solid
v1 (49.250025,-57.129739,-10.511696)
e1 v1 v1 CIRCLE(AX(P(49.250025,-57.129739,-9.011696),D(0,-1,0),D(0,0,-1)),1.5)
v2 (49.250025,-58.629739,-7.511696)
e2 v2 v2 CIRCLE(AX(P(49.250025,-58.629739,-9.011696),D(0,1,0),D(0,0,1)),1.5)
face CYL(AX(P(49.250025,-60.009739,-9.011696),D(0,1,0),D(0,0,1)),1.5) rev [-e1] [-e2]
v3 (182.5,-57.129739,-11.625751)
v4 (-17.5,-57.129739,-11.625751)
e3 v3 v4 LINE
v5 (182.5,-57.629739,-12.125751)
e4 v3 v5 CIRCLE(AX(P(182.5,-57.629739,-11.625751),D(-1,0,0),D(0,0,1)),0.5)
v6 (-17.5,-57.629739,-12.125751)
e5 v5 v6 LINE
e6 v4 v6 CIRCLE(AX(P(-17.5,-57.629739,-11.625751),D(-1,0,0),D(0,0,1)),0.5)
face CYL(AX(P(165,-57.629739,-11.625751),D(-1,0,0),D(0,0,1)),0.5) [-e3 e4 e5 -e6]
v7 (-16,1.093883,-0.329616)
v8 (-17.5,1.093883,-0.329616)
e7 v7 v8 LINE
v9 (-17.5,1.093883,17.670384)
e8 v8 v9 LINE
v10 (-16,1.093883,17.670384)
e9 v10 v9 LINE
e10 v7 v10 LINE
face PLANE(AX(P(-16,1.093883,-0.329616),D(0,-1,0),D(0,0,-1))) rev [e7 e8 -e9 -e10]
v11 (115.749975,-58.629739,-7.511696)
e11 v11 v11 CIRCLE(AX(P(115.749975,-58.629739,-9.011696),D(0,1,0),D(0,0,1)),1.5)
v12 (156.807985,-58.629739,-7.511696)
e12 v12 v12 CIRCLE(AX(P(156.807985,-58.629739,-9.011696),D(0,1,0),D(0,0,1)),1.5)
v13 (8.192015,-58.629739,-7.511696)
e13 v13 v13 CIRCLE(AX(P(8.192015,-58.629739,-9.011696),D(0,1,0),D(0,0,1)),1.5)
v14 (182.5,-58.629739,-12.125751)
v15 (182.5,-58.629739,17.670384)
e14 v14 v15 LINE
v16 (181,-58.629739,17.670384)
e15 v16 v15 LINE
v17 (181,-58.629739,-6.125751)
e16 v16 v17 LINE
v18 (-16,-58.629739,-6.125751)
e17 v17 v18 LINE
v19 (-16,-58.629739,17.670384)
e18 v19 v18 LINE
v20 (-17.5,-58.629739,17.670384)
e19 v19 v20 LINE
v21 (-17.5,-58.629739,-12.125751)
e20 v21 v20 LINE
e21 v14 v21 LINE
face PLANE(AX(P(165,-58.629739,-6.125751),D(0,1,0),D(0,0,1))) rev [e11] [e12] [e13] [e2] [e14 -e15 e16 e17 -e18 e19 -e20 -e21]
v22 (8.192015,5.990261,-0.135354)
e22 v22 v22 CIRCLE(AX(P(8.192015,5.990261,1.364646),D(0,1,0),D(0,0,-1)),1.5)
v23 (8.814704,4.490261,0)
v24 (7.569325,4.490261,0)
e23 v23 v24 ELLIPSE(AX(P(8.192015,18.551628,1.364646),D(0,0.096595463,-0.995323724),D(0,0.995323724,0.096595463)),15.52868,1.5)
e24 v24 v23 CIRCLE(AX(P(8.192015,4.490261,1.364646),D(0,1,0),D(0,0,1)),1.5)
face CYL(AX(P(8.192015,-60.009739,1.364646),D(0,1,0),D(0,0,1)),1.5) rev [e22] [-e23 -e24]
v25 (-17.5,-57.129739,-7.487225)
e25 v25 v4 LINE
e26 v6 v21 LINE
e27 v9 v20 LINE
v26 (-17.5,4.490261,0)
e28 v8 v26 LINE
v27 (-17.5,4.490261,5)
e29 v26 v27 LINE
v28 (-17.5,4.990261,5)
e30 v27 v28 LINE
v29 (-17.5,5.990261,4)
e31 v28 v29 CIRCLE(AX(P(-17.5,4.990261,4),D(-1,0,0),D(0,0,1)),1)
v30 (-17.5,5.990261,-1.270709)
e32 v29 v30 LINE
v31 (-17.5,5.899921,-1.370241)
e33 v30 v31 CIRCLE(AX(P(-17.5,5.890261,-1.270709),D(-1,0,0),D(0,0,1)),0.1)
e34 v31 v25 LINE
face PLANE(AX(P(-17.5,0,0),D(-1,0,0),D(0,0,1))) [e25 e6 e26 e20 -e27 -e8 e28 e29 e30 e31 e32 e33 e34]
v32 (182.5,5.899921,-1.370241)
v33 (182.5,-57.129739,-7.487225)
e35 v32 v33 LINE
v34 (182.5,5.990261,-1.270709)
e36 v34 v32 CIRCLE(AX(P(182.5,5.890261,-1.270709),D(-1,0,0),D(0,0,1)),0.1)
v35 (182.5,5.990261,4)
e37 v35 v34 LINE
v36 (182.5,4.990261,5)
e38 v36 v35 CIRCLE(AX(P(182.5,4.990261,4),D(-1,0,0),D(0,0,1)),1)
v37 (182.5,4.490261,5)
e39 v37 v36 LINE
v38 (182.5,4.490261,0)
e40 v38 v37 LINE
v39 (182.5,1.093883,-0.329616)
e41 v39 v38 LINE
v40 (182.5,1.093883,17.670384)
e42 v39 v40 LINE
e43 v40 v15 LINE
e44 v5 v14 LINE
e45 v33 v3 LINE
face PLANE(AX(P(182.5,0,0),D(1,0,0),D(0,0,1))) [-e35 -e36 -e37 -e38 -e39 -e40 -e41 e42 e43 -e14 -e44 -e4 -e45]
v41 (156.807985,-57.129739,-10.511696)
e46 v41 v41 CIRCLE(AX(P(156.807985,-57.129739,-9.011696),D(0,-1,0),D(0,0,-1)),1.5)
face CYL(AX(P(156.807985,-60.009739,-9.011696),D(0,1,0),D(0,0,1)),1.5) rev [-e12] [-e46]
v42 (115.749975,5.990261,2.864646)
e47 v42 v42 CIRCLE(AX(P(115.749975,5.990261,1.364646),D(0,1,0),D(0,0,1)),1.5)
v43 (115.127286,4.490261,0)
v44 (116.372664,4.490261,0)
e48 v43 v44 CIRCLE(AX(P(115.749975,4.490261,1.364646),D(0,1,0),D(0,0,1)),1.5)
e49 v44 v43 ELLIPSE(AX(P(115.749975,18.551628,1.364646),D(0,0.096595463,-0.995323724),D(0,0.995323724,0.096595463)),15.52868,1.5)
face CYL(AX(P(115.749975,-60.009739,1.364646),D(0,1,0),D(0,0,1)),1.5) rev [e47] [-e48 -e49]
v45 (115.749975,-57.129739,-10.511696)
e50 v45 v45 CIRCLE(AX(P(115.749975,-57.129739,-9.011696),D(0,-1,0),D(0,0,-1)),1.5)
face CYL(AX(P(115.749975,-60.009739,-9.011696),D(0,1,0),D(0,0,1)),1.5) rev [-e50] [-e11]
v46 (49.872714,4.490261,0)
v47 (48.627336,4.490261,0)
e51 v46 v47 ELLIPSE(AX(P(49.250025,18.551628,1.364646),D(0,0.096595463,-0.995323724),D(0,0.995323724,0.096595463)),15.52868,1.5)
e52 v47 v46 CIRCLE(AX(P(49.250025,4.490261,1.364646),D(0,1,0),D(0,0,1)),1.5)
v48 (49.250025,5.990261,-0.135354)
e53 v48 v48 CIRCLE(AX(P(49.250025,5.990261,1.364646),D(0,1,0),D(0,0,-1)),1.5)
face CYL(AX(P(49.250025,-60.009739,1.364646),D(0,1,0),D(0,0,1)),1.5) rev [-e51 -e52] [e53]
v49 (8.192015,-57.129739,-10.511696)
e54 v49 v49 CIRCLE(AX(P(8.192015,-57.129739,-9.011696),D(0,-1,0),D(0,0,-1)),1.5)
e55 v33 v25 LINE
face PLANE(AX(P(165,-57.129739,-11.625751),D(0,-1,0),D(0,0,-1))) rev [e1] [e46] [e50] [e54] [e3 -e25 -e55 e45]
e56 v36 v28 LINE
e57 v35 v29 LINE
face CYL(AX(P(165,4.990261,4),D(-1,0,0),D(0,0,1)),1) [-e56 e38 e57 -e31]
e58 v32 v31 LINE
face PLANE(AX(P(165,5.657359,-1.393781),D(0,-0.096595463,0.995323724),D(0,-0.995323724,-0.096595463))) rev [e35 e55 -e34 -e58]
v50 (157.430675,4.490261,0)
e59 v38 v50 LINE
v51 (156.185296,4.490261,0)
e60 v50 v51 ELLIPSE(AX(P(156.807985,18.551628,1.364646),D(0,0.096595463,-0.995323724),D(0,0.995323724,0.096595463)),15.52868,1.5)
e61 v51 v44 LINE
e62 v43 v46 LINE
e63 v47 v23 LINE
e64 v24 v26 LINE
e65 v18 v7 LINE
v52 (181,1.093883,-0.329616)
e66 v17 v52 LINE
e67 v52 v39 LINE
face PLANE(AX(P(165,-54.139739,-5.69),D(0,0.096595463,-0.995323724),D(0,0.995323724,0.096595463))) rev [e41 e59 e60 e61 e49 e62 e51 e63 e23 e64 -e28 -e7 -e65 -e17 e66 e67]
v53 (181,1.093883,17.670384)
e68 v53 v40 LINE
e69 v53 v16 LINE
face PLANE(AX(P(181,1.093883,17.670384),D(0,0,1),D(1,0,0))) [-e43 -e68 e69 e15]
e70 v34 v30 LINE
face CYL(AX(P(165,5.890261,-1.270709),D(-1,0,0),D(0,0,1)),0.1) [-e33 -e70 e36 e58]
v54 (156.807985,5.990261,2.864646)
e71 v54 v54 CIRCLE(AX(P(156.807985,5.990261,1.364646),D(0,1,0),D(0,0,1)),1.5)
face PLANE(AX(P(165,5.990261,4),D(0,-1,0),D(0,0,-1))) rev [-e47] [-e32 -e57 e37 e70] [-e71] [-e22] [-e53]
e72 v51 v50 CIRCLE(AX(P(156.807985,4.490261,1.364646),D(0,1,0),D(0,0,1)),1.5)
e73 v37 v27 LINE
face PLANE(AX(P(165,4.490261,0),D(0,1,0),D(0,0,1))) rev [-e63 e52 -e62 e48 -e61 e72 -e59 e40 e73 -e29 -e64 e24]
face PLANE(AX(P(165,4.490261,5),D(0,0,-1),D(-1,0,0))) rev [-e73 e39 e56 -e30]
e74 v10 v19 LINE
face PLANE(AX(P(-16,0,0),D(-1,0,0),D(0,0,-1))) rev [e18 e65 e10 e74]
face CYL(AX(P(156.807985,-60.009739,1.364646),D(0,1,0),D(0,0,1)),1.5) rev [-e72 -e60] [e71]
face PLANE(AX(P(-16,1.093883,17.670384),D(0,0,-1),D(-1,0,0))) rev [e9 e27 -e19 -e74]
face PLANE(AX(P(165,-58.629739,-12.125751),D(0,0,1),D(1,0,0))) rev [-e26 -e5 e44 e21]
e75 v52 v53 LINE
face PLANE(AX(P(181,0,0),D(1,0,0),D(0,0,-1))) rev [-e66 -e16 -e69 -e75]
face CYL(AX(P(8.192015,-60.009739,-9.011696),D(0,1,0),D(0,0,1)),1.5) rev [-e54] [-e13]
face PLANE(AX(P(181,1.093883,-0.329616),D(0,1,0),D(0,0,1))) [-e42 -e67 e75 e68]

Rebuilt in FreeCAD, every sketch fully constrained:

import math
import FreeCAD as App
import Part
import Sketcher
from FreeCAD import Vector
Q = App.Units.Quantity


def add_polygon(sketch, points):
    """Adds a closed chain of lines whose ends are joined by coincident constraints."""
    first, n = sketch.GeometryCount, len(points)
    for a, b in zip(points, points[1:] + points[:1]):
        sketch.addGeometry(Part.LineSegment(App.Vector(*a, 0), App.Vector(*b, 0)), False)
    for i in range(n):
        sketch.addConstraint(Sketcher.Constraint("Coincident", first + i, 2, first + (i + 1) % n, 1))

doc = App.newDocument("Part")
params = doc.addObject("Spreadsheet::Sheet", "Params")
for row, (alias, value) in enumerate([
    ("sketch1_radius", "1 mm"),
    ("sketch1_radius2", "0.5 mm"),
    ("sketch1_radius3", "0.1 mm"),
    ("sketch1_width", "1 mm"),
    ("sketch1_height", "6 mm"),
    ("pad1_length", "165 mm"),
    ("sketch2_diameter", "3 mm"),
    ("pocket1_length", "66 mm"),
    ("sketch3_height", "18 mm"),
    ("pad2_length", "1.5 mm"),
    ("sketch4_radius", "1 mm"),
    ("sketch4_radius2", "0.1 mm"),
    ("sketch4_radius3", "0.5 mm"),
    ("sketch4_width", "1 mm"),
    ("sketch4_height", "6 mm"),
    ("pad3_length", "17.5 mm"),
    ("sketch5_height", "18 mm"),
    ("pad4_length", "1.5 mm"),
    ("pocket2_length", "1.5 mm"),
], start=1):
    params.set(f"A{row}", alias)
    params.set(f"B{row}", "=" + value)
    params.setAlias(f"B{row}", alias)

body = doc.addObject("PartDesign::Body", "Body")

sketch1 = body.newObject("Sketcher::SketchObject", "Sketch")
sketch1.AttachmentSupport = (doc.getObject("YZ_Plane"), [""])
sketch1.MapMode = "FlatFace"
sketch1.addGeometry([
    Part.LineSegment(Vector(4.49, 0, 0), Vector(-54.14, -5.69, 0)),
    Part.LineSegment(Vector(-54.14, -5.69, 0), Vector(-58.63, -6.13, 0)),
    Part.LineSegment(Vector(-58.63, -6.13, 0), Vector(-58.63, -12.13, 0)),
    Part.LineSegment(Vector(-58.63, -12.13, 0), Vector(-57.63, -12.13, 0)),
    Part.ArcOfCircle(Part.Circle(Vector(-57.63, -11.63, 0), Vector(0, 0, 1), 0.5), math.radians(-90), math.radians(0)),
    Part.LineSegment(Vector(-57.13, -11.63, 0), Vector(-57.13, -7.49, 0)),
    Part.LineSegment(Vector(-57.13, -7.49, 0), Vector(-52.64, -7.05, 0)),
    Part.LineSegment(Vector(-52.64, -7.05, 0), Vector(5.66, -1.39, 0)),
    Part.LineSegment(Vector(5.66, -1.39, 0), Vector(5.9, -1.37, 0)),
    Part.ArcOfCircle(Part.Circle(Vector(5.89, -1.27, 0), Vector(0, 0, 1), 0.1), math.radians(-84), math.radians(0)),
    Part.LineSegment(Vector(5.99, -1.27, 0), Vector(5.99, 4, 0)),
    Part.ArcOfCircle(Part.Circle(Vector(4.99, 4, 0), Vector(0, 0, 1), 1), math.radians(0), math.radians(90)),
    Part.LineSegment(Vector(4.99, 5, 0), Vector(4.49, 5, 0)),
    Part.LineSegment(Vector(4.49, 5, 0), Vector(4.49, 0, 0)),
], False)
sketch1.addConstraint([
    Sketcher.Constraint("Coincident", 0, 2, 1, 1),
    Sketcher.Constraint("Coincident", 1, 2, 2, 1),
    Sketcher.Constraint("Coincident", 2, 2, 3, 1),
    Sketcher.Constraint("Tangent", 3, 2, 4, 1),
    Sketcher.Constraint("Tangent", 4, 2, 5, 1),
    Sketcher.Constraint("Coincident", 5, 2, 6, 1),
    Sketcher.Constraint("Coincident", 6, 2, 7, 1),
    Sketcher.Constraint("Coincident", 7, 2, 8, 1),
    Sketcher.Constraint("Tangent", 8, 2, 9, 1),
    Sketcher.Constraint("Tangent", 9, 2, 10, 1),
    Sketcher.Constraint("Tangent", 10, 2, 11, 1),
    Sketcher.Constraint("Tangent", 11, 2, 12, 1),
    Sketcher.Constraint("Coincident", 12, 2, 13, 1),
    Sketcher.Constraint("Coincident", 13, 2, 0, 1),
    Sketcher.Constraint("Vertical", 2),
    Sketcher.Constraint("Horizontal", 3),
    Sketcher.Constraint("Vertical", 5),
    Sketcher.Constraint("Vertical", 10),
    Sketcher.Constraint("Horizontal", 12),
    Sketcher.Constraint("Vertical", 13),
    Sketcher.Constraint("PointOnObject", 13, 2, -1),
    Sketcher.Constraint("Parallel", 0, 1),
    Sketcher.Constraint("Parallel", 1, 6),
    Sketcher.Constraint("Parallel", 6, 7),
    Sketcher.Constraint("Parallel", 7, 8),
    Sketcher.Constraint("Equal", 1, 6),
    Sketcher.Constraint("Radius", 11, Q("1 mm")),
    Sketcher.Constraint("Radius", 4, Q("0.5 mm")),
    Sketcher.Constraint("Radius", 9, Q("0.1 mm")),
    Sketcher.Constraint("DistanceX", 3, 1, 3, 2, Q("1 mm")),
    Sketcher.Constraint("DistanceY", 2, 2, 2, 1, Q("6 mm")),
    Sketcher.Constraint("DistanceY", 13, 2, 13, 1, Q("5 mm")),
    Sketcher.Constraint("DistanceX", 12, 2, 12, 1, Q("0.5 mm")),
    Sketcher.Constraint("DistanceY", 0, 2, -1, 1, Q("5.69 mm")),
    Sketcher.Constraint("DistanceX", 4, 3, 9, 3, Q("63.52 mm")),
    Sketcher.Constraint("DistanceX", 4, 3, 0, 2, Q("3.49 mm")),
    Sketcher.Constraint("Distance", 8, Q("0.243702 mm")),
    Sketcher.Constraint("DistanceY", 10, 1, 10, 2, Q("5.270709 mm")),
    Sketcher.Constraint("DistanceX", 4, 3, -1, 1, Q("57.629739 mm")),
])
sketch1.setExpression("Constraints[26]", "Params.sketch1_radius")
sketch1.setExpression("Constraints[27]", "Params.sketch1_radius2")
sketch1.setExpression("Constraints[28]", "Params.sketch1_radius3")
sketch1.setExpression("Constraints[29]", "Params.sketch1_width")
sketch1.setExpression("Constraints[30]", "Params.sketch1_height")
pad1 = body.newObject("PartDesign::Pad", "Pad")
pad1.Profile = sketch1
pad1.setExpression("Length", "Params.pad1_length")

sketch2 = body.newObject("Sketcher::SketchObject", "Sketch001")
sketch2.AttachmentSupport = (doc.getObject("XZ_Plane"), [""])
sketch2.MapMode = "FlatFace"
sketch2.AttachmentOffset = App.Placement(Vector(0, 0, -5.990261), App.Rotation())
sketch2.addGeometry([
    Part.Circle(Vector(156.8, 1.4, 0), Vector(0, 0, 1), 1.5),
    Part.Circle(Vector(115.7, 1.4, 0), Vector(0, 0, 1), 1.5),
    Part.Circle(Vector(49.3, 1.4, 0), Vector(0, 0, 1), 1.5),
    Part.Circle(Vector(8.2, 1.4, 0), Vector(0, 0, 1), 1.5),
    Part.Circle(Vector(8.2, -9, 0), Vector(0, 0, 1), 1.5),
    Part.Circle(Vector(156.8, -9, 0), Vector(0, 0, 1), 1.5),
    Part.Circle(Vector(115.7, -9, 0), Vector(0, 0, 1), 1.5),
    Part.Circle(Vector(49.3, -9, 0), Vector(0, 0, 1), 1.5),
], False)
sketch2.addConstraint([
    Sketcher.Constraint("Equal", 0, 1),
    Sketcher.Constraint("Equal", 1, 2),
    Sketcher.Constraint("Equal", 2, 3),
    Sketcher.Constraint("Equal", 3, 4),
    Sketcher.Constraint("Equal", 4, 5),
    Sketcher.Constraint("Equal", 5, 6),
    Sketcher.Constraint("Equal", 6, 7),
    Sketcher.Constraint("Horizontal", 0, 3, 1, 3),
    Sketcher.Constraint("Horizontal", 1, 3, 2, 3),
    Sketcher.Constraint("Horizontal", 2, 3, 3, 3),
    Sketcher.Constraint("Horizontal", 4, 3, 5, 3),
    Sketcher.Constraint("Horizontal", 5, 3, 6, 3),
    Sketcher.Constraint("Horizontal", 6, 3, 7, 3),
    Sketcher.Constraint("Vertical", 3, 3, 4, 3),
    Sketcher.Constraint("Vertical", 0, 3, 5, 3),
    Sketcher.Constraint("Vertical", 1, 3, 6, 3),
    Sketcher.Constraint("Vertical", 2, 3, 7, 3),
    Sketcher.Constraint("Diameter", 0, Q("3 mm")),
    Sketcher.Constraint("DistanceX", 1, 3, 0, 3, Q("41.058011 mm")),
    Sketcher.Constraint("DistanceX", 2, 3, 1, 3, Q("66.49995 mm")),
    Sketcher.Constraint("DistanceX", 3, 3, 2, 3, Q("41.058011 mm")),
    Sketcher.Constraint("DistanceX", -1, 1, 0, 3, Q("156.807985 mm")),
    Sketcher.Constraint("DistanceY", -1, 1, 0, 3, Q("1.364646 mm")),
    Sketcher.Constraint("DistanceY", 4, 3, -1, 1, Q("9.011696 mm")),
])
sketch2.setExpression("Constraints[17]", "Params.sketch2_diameter")
pocket1 = body.newObject("PartDesign::Pocket", "Pocket")
pocket1.Profile = sketch2
pocket1.setExpression("Length", "Params.pocket1_length")
pocket1.Reversed = True

sketch3 = body.newObject("Sketcher::SketchObject", "Sketch002")
sketch3.AttachmentSupport = (doc.getObject("YZ_Plane"), [""])
sketch3.MapMode = "FlatFace"
sketch3.AttachmentOffset = App.Placement(Vector(0, 0, 165), App.Rotation())
add_polygon(sketch3, [(1, 0), (1, 18), (-59, 18), (-59, -6)])
sketch3.addConstraint([
    Sketcher.Constraint("Vertical", 0),
    Sketcher.Constraint("Horizontal", 1),
    Sketcher.Constraint("Vertical", 2),
    Sketcher.Constraint("DistanceY", 0, 1, 0, 2, Q("18 mm")),
    Sketcher.Constraint("Distance", 3, Q("60.004218 mm")),
    Sketcher.Constraint("DistanceX", 1, 2, 1, 1, Q("59.723622 mm")),
    Sketcher.Constraint("DistanceX", 1, 2, -1, 1, Q("58.629739 mm")),
    Sketcher.Constraint("DistanceY", 2, 2, -1, 1, Q("6.125751 mm")),
])
sketch3.setExpression("Constraints[7]", "Params.sketch3_height")
pad2 = body.newObject("PartDesign::Pad", "Pad001")
pad2.Profile = sketch3
pad2.setExpression("Length", "Params.pad2_length")
pad2.Reversed = True

sketch4 = body.newObject("Sketcher::SketchObject", "Sketch003")
sketch4.AttachmentSupport = (doc.getObject("YZ_Plane"), [""])
sketch4.MapMode = "FlatFace"
sketch4.AttachmentOffset = App.Placement(Vector(0, 0, -17.5), App.Rotation())
sketch4.addGeometry([
    Part.LineSegment(Vector(5.99, 4, 0), Vector(5.99, -1.27, 0)),
    Part.ArcOfCircle(Part.Circle(Vector(5.89, -1.27, 0), Vector(0, 0, 1), 0.1), math.radians(-84), math.radians(0)),
    Part.LineSegment(Vector(5.9, -1.37, 0), Vector(-57.13, -7.49, 0)),
    Part.LineSegment(Vector(-57.13, -7.49, 0), Vector(-57.13, -11.63, 0)),
    Part.ArcOfCircle(Part.Circle(Vector(-57.63, -11.63, 0), Vector(0, 0, 1), 0.5), math.radians(-90), math.radians(0)),
    Part.LineSegment(Vector(-57.63, -12.13, 0), Vector(-58.63, -12.13, 0)),
    Part.LineSegment(Vector(-58.63, -12.13, 0), Vector(-58.63, -6.13, 0)),
    Part.LineSegment(Vector(-58.63, -6.13, 0), Vector(4.49, 0, 0)),
    Part.LineSegment(Vector(4.49, 0, 0), Vector(4.49, 5, 0)),
    Part.LineSegment(Vector(4.49, 5, 0), Vector(4.99, 5, 0)),
    Part.ArcOfCircle(Part.Circle(Vector(4.99, 4, 0), Vector(0, 0, 1), 1), math.radians(0), math.radians(90)),
], False)
sketch4.addConstraint([
    Sketcher.Constraint("Tangent", 0, 2, 1, 2),
    Sketcher.Constraint("Tangent", 1, 1, 2, 1),
    Sketcher.Constraint("Coincident", 2, 2, 3, 1),
    Sketcher.Constraint("Tangent", 3, 2, 4, 2),
    Sketcher.Constraint("Tangent", 4, 1, 5, 1),
    Sketcher.Constraint("Coincident", 5, 2, 6, 1),
    Sketcher.Constraint("Coincident", 6, 2, 7, 1),
    Sketcher.Constraint("Coincident", 7, 2, 8, 1),
    Sketcher.Constraint("Coincident", 8, 2, 9, 1),
    Sketcher.Constraint("Tangent", 9, 2, 10, 2),
    Sketcher.Constraint("Tangent", 10, 1, 0, 1),
    Sketcher.Constraint("Vertical", 0),
    Sketcher.Constraint("Vertical", 3),
    Sketcher.Constraint("Horizontal", 5),
    Sketcher.Constraint("Vertical", 6),
    Sketcher.Constraint("Vertical", 8),
    Sketcher.Constraint("Horizontal", 9),
    Sketcher.Constraint("PointOnObject", 7, 2, -1),
    Sketcher.Constraint("Parallel", 2, 7),
    Sketcher.Constraint("Radius", 10, Q("1 mm")),
    Sketcher.Constraint("Radius", 1, Q("0.1 mm")),
    Sketcher.Constraint("Radius", 4, Q("0.5 mm")),
    Sketcher.Constraint("DistanceX", 5, 2, 5, 1, Q("1 mm")),
    Sketcher.Constraint("DistanceY", 6, 1, 6, 2, Q("6 mm")),
    Sketcher.Constraint("DistanceY", 8, 1, 8, 2, Q("5 mm")),
    Sketcher.Constraint("DistanceX", 9, 1, 9, 2, Q("0.5 mm")),
    Sketcher.Constraint("DistanceX", 4, 3, 1, 3, Q("63.52 mm")),
    Sketcher.Constraint("DistanceY", 0, 2, 0, 1, Q("5.270709 mm")),
    Sketcher.Constraint("Distance", 2, Q("63.325788 mm")),
    Sketcher.Constraint("DistanceX", -1, 1, 1, 3, Q("5.890261 mm")),
])
sketch4.setExpression("Constraints[19]", "Params.sketch4_radius")
sketch4.setExpression("Constraints[20]", "Params.sketch4_radius2")
sketch4.setExpression("Constraints[21]", "Params.sketch4_radius3")
sketch4.setExpression("Constraints[22]", "Params.sketch4_width")
sketch4.setExpression("Constraints[23]", "Params.sketch4_height")
pad3 = body.newObject("PartDesign::Pad", "Pad002")
pad3.Profile = sketch4
pad3.setExpression("Length", "Params.pad3_length")
doc.recompute()

datumplane = body.newObject("PartDesign::Plane", "DatumPlane")
datumplane.AttachmentSupport = (doc.getObject("YZ_Plane"), [""])
datumplane.MapMode = "FlatFace"
datumplane.AttachmentOffset = App.Placement(Vector(0, 0, 82.5), App.Rotation())
mirrored = body.newObject("PartDesign::Mirrored", "Mirrored")
mirrored.Originals = [pad3]
mirrored.MirrorPlane = (datumplane, [""])
body.Tip = mirrored

sketch5 = body.newObject("Sketcher::SketchObject", "Sketch004")
sketch5.AttachmentSupport = (doc.getObject("YZ_Plane"), [""])
sketch5.MapMode = "FlatFace"
sketch5.AttachmentOffset = App.Placement(Vector(0, 0, 182.5), App.Rotation())
add_polygon(sketch5, [(1, 0), (1, 18), (-59, 18), (-59, -6)])
sketch5.addConstraint([
    Sketcher.Constraint("Vertical", 0),
    Sketcher.Constraint("Horizontal", 1),
    Sketcher.Constraint("Vertical", 2),
    Sketcher.Constraint("DistanceY", 0, 1, 0, 2, Q("18 mm")),
    Sketcher.Constraint("Distance", 3, Q("60.004218 mm")),
    Sketcher.Constraint("DistanceX", 1, 2, 1, 1, Q("59.723622 mm")),
    Sketcher.Constraint("DistanceX", 1, 2, -1, 1, Q("58.629739 mm")),
    Sketcher.Constraint("DistanceY", 2, 2, -1, 1, Q("6.125751 mm")),
])
sketch5.setExpression("Constraints[7]", "Params.sketch5_height")
pad4 = body.newObject("PartDesign::Pad", "Pad003")
pad4.Profile = sketch5
pad4.setExpression("Length", "Params.pad4_length")
pad4.Reversed = True

sketch6 = body.newObject("Sketcher::SketchObject", "Sketch005")
sketch6.AttachmentSupport = (doc.getObject("YZ_Plane"), [""])
sketch6.MapMode = "FlatFace"
sketch6.AttachmentOffset = App.Placement(Vector(0, 0, 165), App.Rotation())
add_polygon(sketch6, [(-61, -6), (1, 0), (1, 19), (-61, 19)])
sketch6.addConstraint([
    Sketcher.Constraint("Vertical", 1),
    Sketcher.Constraint("Horizontal", 2),
    Sketcher.Constraint("Vertical", 3),
    Sketcher.Constraint("DistanceX", 2, 2, 2, 1, Q("62.373691 mm")),
    Sketcher.Constraint("DistanceY", 1, 1, 1, 2, Q("19.200642 mm")),
    Sketcher.Constraint("DistanceY", 3, 2, 3, 1, Q("25.253965 mm")),
    Sketcher.Constraint("DistanceY", 3, 2, -1, 1, Q("6.382939 mm")),
    Sketcher.Constraint("DistanceX", -1, 1, 0, 2, Q("1.093883 mm")),
])
pocket2 = body.newObject("PartDesign::Pocket", "Pocket001")
pocket2.Profile = sketch6
pocket2.setExpression("Length", "Params.pocket2_length")
doc.recompute()

datumplane2 = body.newObject("PartDesign::Plane", "DatumPlane001")
datumplane2.AttachmentSupport = (doc.getObject("YZ_Plane"), [""])
datumplane2.MapMode = "FlatFace"
datumplane2.AttachmentOffset = App.Placement(Vector(0, 0, 82.5), App.Rotation())
mirrored2 = body.newObject("PartDesign::Mirrored", "Mirrored001")
mirrored2.Originals = [pad4]
mirrored2.MirrorPlane = (datumplane2, [""])
body.Tip = mirrored2

doc.recompute()
